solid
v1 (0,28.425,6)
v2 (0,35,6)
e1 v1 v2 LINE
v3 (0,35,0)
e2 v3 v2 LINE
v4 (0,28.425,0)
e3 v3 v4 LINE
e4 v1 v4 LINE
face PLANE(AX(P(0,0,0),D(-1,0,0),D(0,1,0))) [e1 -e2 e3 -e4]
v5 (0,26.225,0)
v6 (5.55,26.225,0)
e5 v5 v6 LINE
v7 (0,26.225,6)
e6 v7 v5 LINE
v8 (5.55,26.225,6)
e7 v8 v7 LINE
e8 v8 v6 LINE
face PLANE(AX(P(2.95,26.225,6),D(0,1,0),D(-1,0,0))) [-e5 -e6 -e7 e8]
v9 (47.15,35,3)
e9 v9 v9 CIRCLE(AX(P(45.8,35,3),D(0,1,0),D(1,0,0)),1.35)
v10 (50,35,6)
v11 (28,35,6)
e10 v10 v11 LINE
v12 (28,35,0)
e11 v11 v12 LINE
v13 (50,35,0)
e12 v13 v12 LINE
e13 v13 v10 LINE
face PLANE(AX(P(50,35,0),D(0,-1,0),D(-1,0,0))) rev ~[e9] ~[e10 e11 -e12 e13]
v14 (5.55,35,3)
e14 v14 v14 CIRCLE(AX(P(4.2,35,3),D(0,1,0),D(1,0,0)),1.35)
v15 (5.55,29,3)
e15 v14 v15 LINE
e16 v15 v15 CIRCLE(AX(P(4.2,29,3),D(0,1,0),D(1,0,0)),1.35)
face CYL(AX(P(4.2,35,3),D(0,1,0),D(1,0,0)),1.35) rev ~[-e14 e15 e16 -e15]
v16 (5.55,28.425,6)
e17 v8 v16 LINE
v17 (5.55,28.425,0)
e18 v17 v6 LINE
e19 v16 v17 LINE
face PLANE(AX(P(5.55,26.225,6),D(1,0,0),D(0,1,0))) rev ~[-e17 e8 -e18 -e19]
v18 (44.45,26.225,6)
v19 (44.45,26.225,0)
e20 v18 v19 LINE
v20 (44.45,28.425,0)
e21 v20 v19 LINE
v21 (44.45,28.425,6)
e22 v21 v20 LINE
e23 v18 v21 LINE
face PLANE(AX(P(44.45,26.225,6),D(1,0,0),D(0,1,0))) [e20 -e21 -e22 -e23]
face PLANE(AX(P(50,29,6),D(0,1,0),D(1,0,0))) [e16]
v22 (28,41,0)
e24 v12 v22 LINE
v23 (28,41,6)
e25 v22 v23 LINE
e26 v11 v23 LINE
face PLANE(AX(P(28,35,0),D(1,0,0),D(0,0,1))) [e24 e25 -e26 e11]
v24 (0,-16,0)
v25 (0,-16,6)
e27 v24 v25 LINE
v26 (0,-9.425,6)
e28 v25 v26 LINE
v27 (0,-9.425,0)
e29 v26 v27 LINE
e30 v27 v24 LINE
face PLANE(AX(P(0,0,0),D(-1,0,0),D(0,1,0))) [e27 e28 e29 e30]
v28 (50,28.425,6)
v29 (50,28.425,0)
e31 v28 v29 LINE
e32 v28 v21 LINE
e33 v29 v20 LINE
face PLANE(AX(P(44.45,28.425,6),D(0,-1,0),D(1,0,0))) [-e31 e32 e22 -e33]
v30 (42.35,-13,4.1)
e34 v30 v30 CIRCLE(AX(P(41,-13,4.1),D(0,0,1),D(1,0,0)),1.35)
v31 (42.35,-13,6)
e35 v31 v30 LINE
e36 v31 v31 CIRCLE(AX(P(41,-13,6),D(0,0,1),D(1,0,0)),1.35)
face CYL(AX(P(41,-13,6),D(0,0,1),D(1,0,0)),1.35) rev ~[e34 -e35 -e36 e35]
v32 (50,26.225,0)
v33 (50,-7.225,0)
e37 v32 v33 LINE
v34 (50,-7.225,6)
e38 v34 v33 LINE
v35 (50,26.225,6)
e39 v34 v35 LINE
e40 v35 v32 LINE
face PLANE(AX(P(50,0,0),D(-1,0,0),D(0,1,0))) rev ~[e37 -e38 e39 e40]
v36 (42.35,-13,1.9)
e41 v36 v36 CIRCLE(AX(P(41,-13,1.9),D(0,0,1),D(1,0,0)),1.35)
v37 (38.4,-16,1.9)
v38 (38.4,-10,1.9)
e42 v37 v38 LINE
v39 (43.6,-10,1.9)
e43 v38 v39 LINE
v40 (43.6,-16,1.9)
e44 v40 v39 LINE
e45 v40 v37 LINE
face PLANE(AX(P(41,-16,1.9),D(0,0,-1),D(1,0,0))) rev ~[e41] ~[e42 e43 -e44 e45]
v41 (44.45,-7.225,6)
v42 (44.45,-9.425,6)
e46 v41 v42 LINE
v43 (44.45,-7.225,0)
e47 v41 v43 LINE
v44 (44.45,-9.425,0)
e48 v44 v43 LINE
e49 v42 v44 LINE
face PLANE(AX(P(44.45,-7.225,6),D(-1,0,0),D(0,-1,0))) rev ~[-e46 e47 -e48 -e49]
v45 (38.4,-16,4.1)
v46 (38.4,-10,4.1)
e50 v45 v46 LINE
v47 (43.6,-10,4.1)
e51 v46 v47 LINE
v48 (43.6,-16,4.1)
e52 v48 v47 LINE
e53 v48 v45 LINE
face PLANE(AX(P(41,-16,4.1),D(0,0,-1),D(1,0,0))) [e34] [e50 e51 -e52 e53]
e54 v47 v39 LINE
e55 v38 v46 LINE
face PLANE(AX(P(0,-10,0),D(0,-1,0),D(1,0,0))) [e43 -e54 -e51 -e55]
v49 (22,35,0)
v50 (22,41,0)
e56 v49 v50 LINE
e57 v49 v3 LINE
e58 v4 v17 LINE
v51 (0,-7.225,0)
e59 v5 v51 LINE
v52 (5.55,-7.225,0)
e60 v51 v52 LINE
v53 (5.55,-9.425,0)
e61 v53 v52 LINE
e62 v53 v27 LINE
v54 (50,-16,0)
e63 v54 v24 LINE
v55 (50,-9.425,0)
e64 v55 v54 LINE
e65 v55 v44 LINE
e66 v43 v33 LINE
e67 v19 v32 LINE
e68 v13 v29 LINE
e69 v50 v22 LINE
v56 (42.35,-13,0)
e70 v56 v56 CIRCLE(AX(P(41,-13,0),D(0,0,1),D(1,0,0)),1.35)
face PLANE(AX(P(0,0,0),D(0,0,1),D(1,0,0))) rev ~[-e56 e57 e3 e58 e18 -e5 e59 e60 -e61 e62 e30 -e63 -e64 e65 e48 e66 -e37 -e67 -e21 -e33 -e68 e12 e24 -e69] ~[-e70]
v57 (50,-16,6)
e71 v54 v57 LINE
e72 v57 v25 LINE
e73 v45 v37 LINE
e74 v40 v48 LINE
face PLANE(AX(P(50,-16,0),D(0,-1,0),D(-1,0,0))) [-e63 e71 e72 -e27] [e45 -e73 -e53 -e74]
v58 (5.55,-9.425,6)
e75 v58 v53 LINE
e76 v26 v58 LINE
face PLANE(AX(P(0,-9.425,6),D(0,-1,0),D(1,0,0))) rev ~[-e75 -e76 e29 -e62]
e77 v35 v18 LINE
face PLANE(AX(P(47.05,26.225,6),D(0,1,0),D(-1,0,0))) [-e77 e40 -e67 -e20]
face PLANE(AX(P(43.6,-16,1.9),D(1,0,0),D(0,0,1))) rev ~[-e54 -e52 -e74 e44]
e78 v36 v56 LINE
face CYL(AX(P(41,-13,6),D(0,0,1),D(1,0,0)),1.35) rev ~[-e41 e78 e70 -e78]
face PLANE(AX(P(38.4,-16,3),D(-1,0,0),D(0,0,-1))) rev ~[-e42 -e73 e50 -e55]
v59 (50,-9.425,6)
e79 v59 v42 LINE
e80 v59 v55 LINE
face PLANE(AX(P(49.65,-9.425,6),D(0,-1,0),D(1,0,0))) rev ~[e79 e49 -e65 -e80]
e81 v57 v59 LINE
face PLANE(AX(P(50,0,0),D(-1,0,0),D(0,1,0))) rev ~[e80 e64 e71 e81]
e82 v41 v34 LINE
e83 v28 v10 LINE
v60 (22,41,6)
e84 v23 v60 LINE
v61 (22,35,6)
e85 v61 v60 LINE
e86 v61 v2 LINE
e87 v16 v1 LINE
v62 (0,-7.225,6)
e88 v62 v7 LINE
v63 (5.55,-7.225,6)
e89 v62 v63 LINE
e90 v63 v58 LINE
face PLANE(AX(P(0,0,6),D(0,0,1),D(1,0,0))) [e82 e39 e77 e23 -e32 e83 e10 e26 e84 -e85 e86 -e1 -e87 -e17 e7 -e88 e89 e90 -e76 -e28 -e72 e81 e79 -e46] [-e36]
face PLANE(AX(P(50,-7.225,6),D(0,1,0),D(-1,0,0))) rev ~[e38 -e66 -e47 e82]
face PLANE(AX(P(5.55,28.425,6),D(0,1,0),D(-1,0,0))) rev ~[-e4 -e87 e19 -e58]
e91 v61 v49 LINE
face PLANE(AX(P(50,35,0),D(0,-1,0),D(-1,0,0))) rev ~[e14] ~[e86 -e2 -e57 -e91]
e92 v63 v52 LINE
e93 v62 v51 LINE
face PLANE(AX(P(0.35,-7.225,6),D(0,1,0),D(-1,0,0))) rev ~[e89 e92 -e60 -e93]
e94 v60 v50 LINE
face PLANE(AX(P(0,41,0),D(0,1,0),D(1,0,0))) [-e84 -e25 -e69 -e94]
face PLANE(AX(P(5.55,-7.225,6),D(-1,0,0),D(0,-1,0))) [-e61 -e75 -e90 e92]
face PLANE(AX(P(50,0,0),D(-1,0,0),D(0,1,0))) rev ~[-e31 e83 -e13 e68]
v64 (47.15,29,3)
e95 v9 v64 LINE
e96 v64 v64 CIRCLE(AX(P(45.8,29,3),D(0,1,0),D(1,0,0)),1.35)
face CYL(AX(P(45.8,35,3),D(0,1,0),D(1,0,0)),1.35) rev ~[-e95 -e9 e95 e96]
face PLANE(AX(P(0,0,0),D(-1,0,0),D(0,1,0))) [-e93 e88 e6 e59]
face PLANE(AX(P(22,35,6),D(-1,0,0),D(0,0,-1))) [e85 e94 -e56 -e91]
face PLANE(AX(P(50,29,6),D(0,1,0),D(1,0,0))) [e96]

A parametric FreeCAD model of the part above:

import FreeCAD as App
import Part
import Sketcher

V = App.Vector


def add_polygon(sketch, points):
    """Adds a closed chain of lines whose ends are joined by coincident constraints."""
    first, n = sketch.GeometryCount, len(points)
    for a, b in zip(points, points[1:] + points[:1]):
        sketch.addGeometry(Part.LineSegment(App.Vector(*a, 0), App.Vector(*b, 0)), False)
    for i in range(n):
        sketch.addConstraint(Sketcher.Constraint("Coincident", first + i, 2, first + (i + 1) % n, 1))

doc = App.newDocument("Part")
body = doc.addObject("PartDesign::Body", "Body")

# Sketch on XY plane
sketch1 = body.newObject("Sketcher::SketchObject", "Sketch")
sketch1.AttachmentSupport = (doc.getObject("XY_Plane"), [""])
sketch1.MapMode = "FlatFace"
add_polygon(sketch1, [(0, -16), (50, -16), (50, 35), (0, 35)])  # lines 0-3
sketch1.addConstraint(Sketcher.Constraint("Horizontal", 0))
sketch1.addConstraint(Sketcher.Constraint("Vertical", 1))
sketch1.addConstraint(Sketcher.Constraint("Horizontal", 2))
sketch1.addConstraint(Sketcher.Constraint("Vertical", 3))
sketch1.addConstraint(Sketcher.Constraint("PointOnObject", 2, 2, -2))
sketch1.addConstraint(Sketcher.Constraint("DistanceX", 0, 1, 0, 2, 50.0))
sketch1.addConstraint(Sketcher.Constraint("DistanceY", 1, 1, 1, 2, 51.0))
sketch1.addConstraint(Sketcher.Constraint("DistanceY", 0, 2, -1, 1, 16.0))
pad1 = body.newObject("PartDesign::Pad", "Pad")
pad1.Profile = sketch1
pad1.Length = 6

# Sketch on XY plane
sketch2 = body.newObject("Sketcher::SketchObject", "Sketch001")
sketch2.AttachmentSupport = (doc.getObject("XY_Plane"), [""])
sketch2.MapMode = "FlatFace"
sketch2.AttachmentOffset = App.Placement(V(0, 0, 6), App.Rotation())
sketch2.addGeometry(Part.Circle(V(41, -13, 0), V(0, 0, 1), 1.4), False)
sketch2.addConstraint(Sketcher.Constraint("Diameter", 0, 2.7))
sketch2.addConstraint(Sketcher.Constraint("DistanceX", -1, 1, 0, 3, 41.0))
sketch2.addConstraint(Sketcher.Constraint("DistanceY", 0, 3, -1, 1, 13.0))
pocket1 = body.newObject("PartDesign::Pocket", "Pocket")
pocket1.Profile = sketch2
pocket1.Type = "UpToFirst"

# Sketch on XZ plane
sketch3 = body.newObject("Sketcher::SketchObject", "Sketch002")
sketch3.AttachmentSupport = (doc.getObject("XZ_Plane"), [""])
sketch3.MapMode = "FlatFace"
sketch3.AttachmentOffset = App.Placement(V(0, 0, -35), App.Rotation())
add_polygon(sketch3, [(28, 0), (22, 0), (22, 6), (28, 6)])  # lines 0-3
sketch3.addConstraint(Sketcher.Constraint("Horizontal", 0))
sketch3.addConstraint(Sketcher.Constraint("Vertical", 1))
sketch3.addConstraint(Sketcher.Constraint("Horizontal", 2))
sketch3.addConstraint(Sketcher.Constraint("Vertical", 3))
sketch3.addConstraint(Sketcher.Constraint("PointOnObject", 0, 2, -1))
sketch3.addConstraint(Sketcher.Constraint("Equal", 2, 1))
sketch3.addConstraint(Sketcher.Constraint("DistanceX", 0, 2, 0, 1, 6.0))
sketch3.addConstraint(Sketcher.Constraint("DistanceX", -1, 1, 0, 2, 22.0))
pad2 = body.newObject("PartDesign::Pad", "Pad001")
pad2.Profile = sketch3
pad2.Length = 6
pad2.Reversed = True

# Sketch on XZ plane
sketch4 = body.newObject("Sketcher::SketchObject", "Sketch003")
sketch4.AttachmentSupport = (doc.getObject("XZ_Plane"), [""])
sketch4.MapMode = "FlatFace"
sketch4.AttachmentOffset = App.Placement(V(0, 0, -35), App.Rotation())
sketch4.addGeometry(Part.Circle(V(45.8, 3, 0), V(0, 0, 1), 1.4), False)
sketch4.addGeometry(Part.Circle(V(4.2, 3, 0), V(0, 0, 1), 1.4), False)
sketch4.addConstraint(Sketcher.Constraint("Equal", 0, 1))
sketch4.addConstraint(Sketcher.Constraint("Horizontal", 0, 3, 1, 3))
sketch4.addConstraint(Sketcher.Constraint("Diameter", 0, 2.7))
sketch4.addConstraint(Sketcher.Constraint("DistanceY", -1, 1, 0, 3, 3.0))
sketch4.addConstraint(Sketcher.Constraint("DistanceX", -1, 1, 0, 3, 45.8))
sketch4.addConstraint(Sketcher.Constraint("DistanceX", -1, 1, 1, 3, 4.2))
pocket2 = body.newObject("PartDesign::Pocket", "Pocket001")
pocket2.Profile = sketch4
pocket2.Length = 6
pocket2.Reversed = True

# Sketch on XY plane
sketch5 = body.newObject("Sketcher::SketchObject", "Sketch004")
sketch5.AttachmentSupport = (doc.getObject("XY_Plane"), [""])
sketch5.MapMode = "FlatFace"
sketch5.AttachmentOffset = App.Placement(V(0, 0, 6), App.Rotation())
add_polygon(sketch5, [(44.5, 26.2), (50, 26.2), (50, 28.4), (44.5, 28.4)])  # lines 0-3
add_polygon(sketch5, [(50, -9.4), (50, -7.2), (44.5, -7.2), (44.5, -9.4)])  # lines 4-7
add_polygon(sketch5, [(0, -7.2), (0, -9.4), (5.5, -9.4), (5.5, -7.2)])  # lines 8-11
add_polygon(sketch5, [(5.5, 26.2), (5.5, 28.4), (0, 28.4), (0, 26.2)])  # lines 12-15
sketch5.addConstraint(Sketcher.Constraint("Horizontal", 0))
sketch5.addConstraint(Sketcher.Constraint("Vertical", 1))
sketch5.addConstraint(Sketcher.Constraint("Horizontal", 2))
sketch5.addConstraint(Sketcher.Constraint("Vertical", 3))
sketch5.addConstraint(Sketcher.Constraint("Vertical", 4))
sketch5.addConstraint(Sketcher.Constraint("Horizontal", 5))
sketch5.addConstraint(Sketcher.Constraint("Vertical", 6))
sketch5.addConstraint(Sketcher.Constraint("Horizontal", 7))
sketch5.addConstraint(Sketcher.Constraint("Vertical", 8))
sketch5.addConstraint(Sketcher.Constraint("Horizontal", 9))
sketch5.addConstraint(Sketcher.Constraint("Vertical", 10))
sketch5.addConstraint(Sketcher.Constraint("Horizontal", 11))
sketch5.addConstraint(Sketcher.Constraint("Vertical", 12))
sketch5.addConstraint(Sketcher.Constraint("Horizontal", 13))
sketch5.addConstraint(Sketcher.Constraint("Vertical", 14))
sketch5.addConstraint(Sketcher.Constraint("Horizontal", 15))
sketch5.addConstraint(Sketcher.Constraint("PointOnObject", 8, 2, -2))
sketch5.addConstraint(Sketcher.Constraint("PointOnObject", 13, 2, -2))
sketch5.addConstraint(Sketcher.Constraint("Horizontal", 7, 2, 8, 2))
sketch5.addConstraint(Sketcher.Constraint("Horizontal", 5, 2, 10, 2))
sketch5.addConstraint(Sketcher.Constraint("Horizontal", 2, 2, 12, 2))
sketch5.addConstraint(Sketcher.Constraint("Horizontal", 3, 2, 14, 2))
sketch5.addConstraint(Sketcher.Constraint("Vertical", 1, 2, 4, 2))
sketch5.addConstraint(Sketcher.Constraint("Vertical", 3, 2, 5, 2))
sketch5.addConstraint(Sketcher.Constraint("Vertical", 10, 2, 12, 2))
sketch5.addConstraint(Sketcher.Constraint("Equal", 7, 9))
sketch5.addConstraint(Sketcher.Constraint("Equal", 3, 4))
sketch5.addConstraint(Sketcher.Constraint("DistanceY", 1, 1, 1, 2, 2.2))
sketch5.addConstraint(Sketcher.Constraint("DistanceX", -1, 1, 0, 2, 50.0))
sketch5.addConstraint(Sketcher.Constraint("DistanceX", 0, 1, 0, 2, 5.55))
sketch5.addConstraint(Sketcher.Constraint("DistanceY", 4, 2, 0, 2, 33.45))
sketch5.addConstraint(Sketcher.Constraint("DistanceY", -1, 1, 0, 2, 26.225))
pocket3 = body.newObject("PartDesign::Pocket", "Pocket002")
pocket3.Profile = sketch5
pocket3.Type = "UpToFirst"

# Sketch on XZ plane
sketch6 = body.newObject("Sketcher::SketchObject", "Sketch005")
sketch6.AttachmentSupport = (doc.getObject("XZ_Plane"), [""])
sketch6.MapMode = "FlatFace"
sketch6.AttachmentOffset = App.Placement(V(0, 0, 16), App.Rotation())
add_polygon(sketch6, [(43.6, 1.9), (43.6, 4.1), (38.4, 4.1), (38.4, 1.9)])  # lines 0-3
sketch6.addConstraint(Sketcher.Constraint("Vertical", 0))
sketch6.addConstraint(Sketcher.Constraint("Horizontal", 1))
sketch6.addConstraint(Sketcher.Constraint("Vertical", 2))
sketch6.addConstraint(Sketcher.Constraint("Horizontal", 3))
sketch6.addConstraint(Sketcher.Constraint("DistanceX", 1, 2, 1, 1, 5.2))
sketch6.addConstraint(Sketcher.Constraint("DistanceY", 0, 1, 0, 2, 2.2))
sketch6.addConstraint(Sketcher.Constraint("DistanceX", -1, 1, 0, 2, 43.6))
sketch6.addConstraint(Sketcher.Constraint("DistanceY", -1, 1, 0, 2, 4.1))
pocket4 = body.newObject("PartDesign::Pocket", "Pocket003")
pocket4.Profile = sketch6
pocket4.Length = 6

doc.recompute()
